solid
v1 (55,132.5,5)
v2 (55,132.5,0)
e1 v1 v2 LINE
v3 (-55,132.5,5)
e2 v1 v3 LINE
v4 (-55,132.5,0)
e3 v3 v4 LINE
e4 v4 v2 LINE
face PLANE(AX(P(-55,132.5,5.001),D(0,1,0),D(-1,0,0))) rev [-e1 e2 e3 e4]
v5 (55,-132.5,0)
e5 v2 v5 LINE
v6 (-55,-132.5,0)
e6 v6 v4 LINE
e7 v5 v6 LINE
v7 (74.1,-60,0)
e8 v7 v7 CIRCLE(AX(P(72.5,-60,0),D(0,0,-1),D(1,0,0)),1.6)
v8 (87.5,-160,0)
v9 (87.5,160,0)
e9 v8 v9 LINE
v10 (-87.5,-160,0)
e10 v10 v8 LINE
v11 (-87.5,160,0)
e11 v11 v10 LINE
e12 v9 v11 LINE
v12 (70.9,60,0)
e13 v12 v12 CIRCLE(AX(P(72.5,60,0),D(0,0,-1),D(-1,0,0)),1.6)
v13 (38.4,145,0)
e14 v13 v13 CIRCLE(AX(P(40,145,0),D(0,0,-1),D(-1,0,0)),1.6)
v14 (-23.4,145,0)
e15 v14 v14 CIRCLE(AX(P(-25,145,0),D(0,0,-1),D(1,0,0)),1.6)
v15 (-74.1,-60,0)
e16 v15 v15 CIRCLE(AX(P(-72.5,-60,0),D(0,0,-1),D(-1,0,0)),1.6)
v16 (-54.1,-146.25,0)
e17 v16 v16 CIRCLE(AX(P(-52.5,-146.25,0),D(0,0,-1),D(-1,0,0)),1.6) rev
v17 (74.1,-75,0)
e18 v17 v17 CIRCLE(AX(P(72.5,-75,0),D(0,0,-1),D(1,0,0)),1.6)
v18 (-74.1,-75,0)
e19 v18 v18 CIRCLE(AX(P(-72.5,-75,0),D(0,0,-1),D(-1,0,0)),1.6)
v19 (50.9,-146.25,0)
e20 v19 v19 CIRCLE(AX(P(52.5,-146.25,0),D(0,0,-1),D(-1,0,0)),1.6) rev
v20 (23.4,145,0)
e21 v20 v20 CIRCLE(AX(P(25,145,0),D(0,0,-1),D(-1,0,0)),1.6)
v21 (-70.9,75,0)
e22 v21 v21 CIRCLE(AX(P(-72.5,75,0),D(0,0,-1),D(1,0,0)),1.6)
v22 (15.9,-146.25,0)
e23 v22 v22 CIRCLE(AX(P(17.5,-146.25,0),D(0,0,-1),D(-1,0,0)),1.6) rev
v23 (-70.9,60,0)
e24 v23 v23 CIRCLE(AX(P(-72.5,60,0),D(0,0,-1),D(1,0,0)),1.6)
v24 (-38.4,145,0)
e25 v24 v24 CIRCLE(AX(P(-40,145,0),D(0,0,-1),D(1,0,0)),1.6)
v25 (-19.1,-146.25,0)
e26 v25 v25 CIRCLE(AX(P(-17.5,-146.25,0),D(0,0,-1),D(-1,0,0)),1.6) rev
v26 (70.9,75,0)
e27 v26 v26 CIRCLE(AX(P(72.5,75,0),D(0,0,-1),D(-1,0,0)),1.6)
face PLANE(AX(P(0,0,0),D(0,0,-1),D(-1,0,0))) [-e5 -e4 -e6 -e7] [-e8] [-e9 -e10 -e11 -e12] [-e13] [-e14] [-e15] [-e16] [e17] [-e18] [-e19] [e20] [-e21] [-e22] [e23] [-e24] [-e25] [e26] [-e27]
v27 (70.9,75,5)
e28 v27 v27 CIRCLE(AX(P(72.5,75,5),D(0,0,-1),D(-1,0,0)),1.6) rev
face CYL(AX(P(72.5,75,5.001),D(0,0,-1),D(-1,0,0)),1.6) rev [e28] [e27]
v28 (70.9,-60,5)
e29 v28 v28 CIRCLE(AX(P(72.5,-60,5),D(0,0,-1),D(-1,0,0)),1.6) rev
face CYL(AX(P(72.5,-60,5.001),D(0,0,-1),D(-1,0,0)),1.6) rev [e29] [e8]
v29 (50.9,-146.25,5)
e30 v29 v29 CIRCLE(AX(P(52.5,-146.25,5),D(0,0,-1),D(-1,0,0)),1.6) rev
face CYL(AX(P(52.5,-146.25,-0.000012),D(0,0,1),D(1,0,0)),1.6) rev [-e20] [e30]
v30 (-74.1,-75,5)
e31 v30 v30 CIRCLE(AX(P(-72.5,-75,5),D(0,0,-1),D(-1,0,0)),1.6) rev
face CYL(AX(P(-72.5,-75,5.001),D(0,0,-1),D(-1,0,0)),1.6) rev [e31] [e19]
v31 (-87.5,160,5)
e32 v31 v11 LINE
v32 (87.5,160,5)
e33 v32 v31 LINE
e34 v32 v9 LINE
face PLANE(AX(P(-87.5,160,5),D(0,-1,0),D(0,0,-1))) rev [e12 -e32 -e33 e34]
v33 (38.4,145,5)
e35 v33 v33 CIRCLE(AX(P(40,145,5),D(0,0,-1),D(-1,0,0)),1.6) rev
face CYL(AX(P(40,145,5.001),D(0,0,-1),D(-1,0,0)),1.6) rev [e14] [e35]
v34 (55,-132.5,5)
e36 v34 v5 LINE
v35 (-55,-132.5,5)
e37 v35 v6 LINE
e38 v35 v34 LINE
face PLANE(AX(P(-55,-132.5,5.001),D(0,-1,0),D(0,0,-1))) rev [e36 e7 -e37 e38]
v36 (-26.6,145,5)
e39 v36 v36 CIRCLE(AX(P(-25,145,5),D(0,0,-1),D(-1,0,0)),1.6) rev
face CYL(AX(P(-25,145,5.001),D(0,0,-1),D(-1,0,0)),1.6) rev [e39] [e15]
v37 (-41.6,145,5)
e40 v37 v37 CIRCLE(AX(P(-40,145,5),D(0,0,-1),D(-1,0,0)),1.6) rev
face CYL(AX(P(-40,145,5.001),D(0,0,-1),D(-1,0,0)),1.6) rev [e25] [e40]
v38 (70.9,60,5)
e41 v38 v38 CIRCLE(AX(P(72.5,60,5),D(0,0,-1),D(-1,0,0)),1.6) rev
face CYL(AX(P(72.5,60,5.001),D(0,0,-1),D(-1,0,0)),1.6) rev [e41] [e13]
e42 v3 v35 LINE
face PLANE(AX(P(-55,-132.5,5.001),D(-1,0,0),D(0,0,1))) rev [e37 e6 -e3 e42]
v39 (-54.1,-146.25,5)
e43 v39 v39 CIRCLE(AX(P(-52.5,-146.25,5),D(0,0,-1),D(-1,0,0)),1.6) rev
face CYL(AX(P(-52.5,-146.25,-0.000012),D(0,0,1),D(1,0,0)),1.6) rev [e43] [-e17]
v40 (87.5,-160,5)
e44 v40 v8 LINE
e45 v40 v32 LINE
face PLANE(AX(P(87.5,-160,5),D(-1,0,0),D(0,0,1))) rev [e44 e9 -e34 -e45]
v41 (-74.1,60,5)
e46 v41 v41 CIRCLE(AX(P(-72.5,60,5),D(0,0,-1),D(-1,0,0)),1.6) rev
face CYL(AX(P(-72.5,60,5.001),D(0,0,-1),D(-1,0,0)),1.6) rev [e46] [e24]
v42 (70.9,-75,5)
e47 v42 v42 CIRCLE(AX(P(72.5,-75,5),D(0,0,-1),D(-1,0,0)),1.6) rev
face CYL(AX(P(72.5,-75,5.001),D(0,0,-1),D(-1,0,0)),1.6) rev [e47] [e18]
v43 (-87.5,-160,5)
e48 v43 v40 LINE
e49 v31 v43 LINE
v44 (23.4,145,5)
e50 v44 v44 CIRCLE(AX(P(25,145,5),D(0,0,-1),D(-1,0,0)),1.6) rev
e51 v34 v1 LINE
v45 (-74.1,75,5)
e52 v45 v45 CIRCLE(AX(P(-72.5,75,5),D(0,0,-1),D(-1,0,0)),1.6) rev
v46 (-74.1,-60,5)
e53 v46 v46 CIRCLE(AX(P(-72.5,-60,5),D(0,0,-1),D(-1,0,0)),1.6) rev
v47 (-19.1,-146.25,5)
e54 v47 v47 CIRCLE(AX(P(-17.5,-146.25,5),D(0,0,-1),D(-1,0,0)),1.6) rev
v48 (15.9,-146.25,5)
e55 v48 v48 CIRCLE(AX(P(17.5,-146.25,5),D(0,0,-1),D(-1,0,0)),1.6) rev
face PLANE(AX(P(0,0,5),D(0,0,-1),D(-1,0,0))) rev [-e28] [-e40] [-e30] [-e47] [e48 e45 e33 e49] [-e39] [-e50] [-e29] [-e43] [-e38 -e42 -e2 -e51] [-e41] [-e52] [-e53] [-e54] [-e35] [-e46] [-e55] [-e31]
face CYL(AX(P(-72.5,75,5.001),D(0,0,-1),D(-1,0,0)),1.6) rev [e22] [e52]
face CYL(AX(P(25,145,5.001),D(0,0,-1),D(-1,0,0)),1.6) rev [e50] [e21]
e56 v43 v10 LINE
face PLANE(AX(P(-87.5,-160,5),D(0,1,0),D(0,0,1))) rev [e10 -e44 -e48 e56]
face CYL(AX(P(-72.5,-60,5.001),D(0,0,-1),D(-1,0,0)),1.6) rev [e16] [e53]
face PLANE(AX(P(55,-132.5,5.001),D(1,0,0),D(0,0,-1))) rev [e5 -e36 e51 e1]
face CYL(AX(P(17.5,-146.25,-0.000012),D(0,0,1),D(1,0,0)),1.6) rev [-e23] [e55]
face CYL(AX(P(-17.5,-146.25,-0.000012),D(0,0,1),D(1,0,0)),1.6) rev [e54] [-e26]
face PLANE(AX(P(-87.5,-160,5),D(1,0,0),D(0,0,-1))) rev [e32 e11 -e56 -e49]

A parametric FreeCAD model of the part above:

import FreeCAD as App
import Part
import Sketcher

V = App.Vector


def add_polygon(sketch, points):
    """Adds a closed chain of lines whose ends are joined by coincident constraints."""
    first, n = sketch.GeometryCount, len(points)
    for a, b in zip(points, points[1:] + points[:1]):
        sketch.addGeometry(Part.LineSegment(App.Vector(*a, 0), App.Vector(*b, 0)), False)
    for i in range(n):
        sketch.addConstraint(Sketcher.Constraint("Coincident", first + i, 2, first + (i + 1) % n, 1))

doc = App.newDocument("Part")
params = doc.addObject("Spreadsheet::Sheet", "Params")
for row, (alias, value) in enumerate([
    ("sketch1_width", "175 mm"),
    ("sketch1_height", "320 mm"),
    ("pad1_length", "5 mm"),
    ("sketch2_width", "110 mm"),
    ("sketch2_height", "265 mm"),
    ("sketch3_diameter", "3.2 mm"),
    ("sketch4_diameter", "3.2 mm"),
    ("sketch5_diameter", "3.2 mm"),
    ("sketch6_diameter", "3.2 mm"),
    ("sketch7_diameter", "3.2 mm"),
    ("sketch8_diameter", "3.2 mm"),
    ("sketch9_diameter", "3.2 mm"),
    ("sketch10_diameter", "3.2 mm"),
    ("sketch11_diameter", "3.2 mm"),
    ("sketch12_diameter", "3.2 mm"),
    ("sketch13_diameter", "3.2 mm"),
    ("sketch14_diameter", "3.2 mm"),
    ("sketch15_diameter", "3.2 mm"),
    ("sketch16_diameter", "3.2 mm"),
    ("sketch17_diameter", "3.2 mm"),
    ("sketch18_diameter", "3.2 mm"),
    ("sketch19_diameter", "3.2 mm"),
    ("pocket18_length", "1 mm"),
], start=1):
    params.set(f"A{row}", alias)
    params.set(f"B{row}", "=" + value)
    params.setAlias(f"B{row}", alias)

body = doc.addObject("PartDesign::Body", "Body")

sketch1 = body.newObject("Sketcher::SketchObject", "Sketch")
sketch1.AttachmentSupport = (doc.getObject("XY_Plane"), [""])
sketch1.MapMode = "FlatFace"
add_polygon(sketch1, [(-87.5, 160), (-87.5, -160), (87.5, -160), (87.5, 160)])
sketch1.addConstraint([
    Sketcher.Constraint("Vertical", 0),
    Sketcher.Constraint("Horizontal", 1),
    Sketcher.Constraint("Vertical", 2),
    Sketcher.Constraint("Horizontal", 3),
    Sketcher.Constraint("Symmetric", 0, 2, 2, 2, -1, 1),
    Sketcher.Constraint("DistanceX", 1, 1, 1, 2, 175.0),
    Sketcher.Constraint("DistanceY", 0, 2, 0, 1, 320.0),
])
sketch1.setExpression("Constraints[9]", "Params.sketch1_width")
sketch1.setExpression("Constraints[10]", "Params.sketch1_height")
pad1 = body.newObject("PartDesign::Pad", "Pad")
pad1.Profile = sketch1
pad1.setExpression("Length", "Params.pad1_length")

sketch2 = body.newObject("Sketcher::SketchObject", "Sketch001")
sketch2.AttachmentSupport = (doc.getObject("XY_Plane"), [""])
sketch2.MapMode = "FlatFace"
add_polygon(sketch2, [(55, 132.5), (55, -132.5), (-55, -132.5), (-55, 132.5)])
sketch2.addConstraint([
    Sketcher.Constraint("Vertical", 0),
    Sketcher.Constraint("Horizontal", 1),
    Sketcher.Constraint("Vertical", 2),
    Sketcher.Constraint("Horizontal", 3),
    Sketcher.Constraint("Symmetric", 0, 2, 2, 2, -1, 1),
    Sketcher.Constraint("DistanceX", 1, 2, 1, 1, 110.0),
    Sketcher.Constraint("DistanceY", 0, 2, 0, 1, 265.0),
])
sketch2.setExpression("Constraints[9]", "Params.sketch2_width")
sketch2.setExpression("Constraints[10]", "Params.sketch2_height")
pocket1 = body.newObject("PartDesign::Pocket", "Pocket")
pocket1.Profile = sketch2
pocket1.Type = "UpToFirst"
pocket1.Reversed = True

sketch3 = body.newObject("Sketcher::SketchObject", "Sketch002")
sketch3.AttachmentSupport = (doc.getObject("XY_Plane"), [""])
sketch3.MapMode = "FlatFace"
sketch3.addGeometry(Part.Circle(V(25, 145, 0), V(0, 0, 1), 1.6), False)
sketch3.addConstraint([
    Sketcher.Constraint("Diameter", 0, 3.2),
    Sketcher.Constraint("DistanceX", -1, 1, 0, 3, 25.0),
    Sketcher.Constraint("DistanceY", -1, 1, 0, 3, 145.0),
])
sketch3.setExpression("Constraints[0]", "Params.sketch3_diameter")
pocket2 = body.newObject("PartDesign::Pocket", "Pocket001")
pocket2.Profile = sketch3
pocket2.Type = "UpToFirst"
pocket2.Reversed = True

sketch4 = body.newObject("Sketcher::SketchObject", "Sketch003")
sketch4.AttachmentSupport = (doc.getObject("XY_Plane"), [""])
sketch4.MapMode = "FlatFace"
sketch4.addGeometry(Part.Circle(V(40, 145, 0), V(0, 0, 1), 1.6), False)
sketch4.addConstraint([
    Sketcher.Constraint("Diameter", 0, 3.2),
    Sketcher.Constraint("DistanceX", -1, 1, 0, 3, 40.0),
    Sketcher.Constraint("DistanceY", -1, 1, 0, 3, 145.0),
])
sketch4.setExpression("Constraints[0]", "Params.sketch4_diameter")
pocket3 = body.newObject("PartDesign::Pocket", "Pocket002")
pocket3.Profile = sketch4
pocket3.Type = "UpToFirst"
pocket3.Reversed = True

sketch5 = body.newObject("Sketcher::SketchObject", "Sketch004")
sketch5.AttachmentSupport = (doc.getObject("XY_Plane"), [""])
sketch5.MapMode = "FlatFace"
sketch5.addGeometry(Part.Circle(V(-25, 145, 0), V(0, 0, 1), 1.6), False)
sketch5.addConstraint([
    Sketcher.Constraint("Diameter", 0, 3.2),
    Sketcher.Constraint("DistanceX", 0, 3, -1, 1, 25.0),
    Sketcher.Constraint("DistanceY", -1, 1, 0, 3, 145.0),
])
sketch5.setExpression("Constraints[0]", "Params.sketch5_diameter")
pocket4 = body.newObject("PartDesign::Pocket", "Pocket003")
pocket4.Profile = sketch5
pocket4.Type = "UpToFirst"
pocket4.Reversed = True

sketch6 = body.newObject("Sketcher::SketchObject", "Sketch005")
sketch6.AttachmentSupport = (doc.getObject("XY_Plane"), [""])
sketch6.MapMode = "FlatFace"
sketch6.addGeometry(Part.Circle(V(-40, 145, 0), V(0, 0, 1), 1.6), False)
sketch6.addConstraint([
    Sketcher.Constraint("Diameter", 0, 3.2),
    Sketcher.Constraint("DistanceX", 0, 3, -1, 1, 40.0),
    Sketcher.Constraint("DistanceY", -1, 1, 0, 3, 145.0),
])
sketch6.setExpression("Constraints[0]", "Params.sketch6_diameter")
pocket5 = body.newObject("PartDesign::Pocket", "Pocket004")
pocket5.Profile = sketch6
pocket5.Type = "UpToFirst"
pocket5.Reversed = True

sketch7 = body.newObject("Sketcher::SketchObject", "Sketch006")
sketch7.AttachmentSupport = (doc.getObject("XY_Plane"), [""])
sketch7.MapMode = "FlatFace"
sketch7.addGeometry(Part.Circle(V(72.5, 75, 0), V(0, 0, 1), 1.6), False)
sketch7.addConstraint([
    Sketcher.Constraint("Diameter", 0, 3.2),
    Sketcher.Constraint("DistanceY", -1, 1, 0, 3, 75.0),
    Sketcher.Constraint("DistanceX", -1, 1, 0, 3, 72.5),
])
sketch7.setExpression("Constraints[0]", "Params.sketch7_diameter")
pocket6 = body.newObject("PartDesign::Pocket", "Pocket005")
pocket6.Profile = sketch7
pocket6.Type = "UpToFirst"
pocket6.Reversed = True

sketch8 = body.newObject("Sketcher::SketchObject", "Sketch007")
sketch8.AttachmentSupport = (doc.getObject("XY_Plane"), [""])
sketch8.MapMode = "FlatFace"
sketch8.addGeometry(Part.Circle(V(72.5, 60, 0), V(0, 0, 1), 1.6), False)
sketch8.addConstraint([
    Sketcher.Constraint("Diameter", 0, 3.2),
    Sketcher.Constraint("DistanceY", -1, 1, 0, 3, 60.0),
    Sketcher.Constraint("DistanceX", -1, 1, 0, 3, 72.5),
])
sketch8.setExpression("Constraints[0]", "Params.sketch8_diameter")
pocket7 = body.newObject("PartDesign::Pocket", "Pocket006")
pocket7.Profile = sketch8
pocket7.Type = "UpToFirst"
pocket7.Reversed = True

sketch9 = body.newObject("Sketcher::SketchObject", "Sketch008")
sketch9.AttachmentSupport = (doc.getObject("XY_Plane"), [""])
sketch9.MapMode = "FlatFace"
sketch9.addGeometry(Part.Circle(V(72.5, -75, 0), V(0, 0, 1), 1.6), False)
sketch9.addConstraint([
    Sketcher.Constraint("Diameter", 0, 3.2),
    Sketcher.Constraint("DistanceY", 0, 3, -1, 1, 75.0),
    Sketcher.Constraint("DistanceX", -1, 1, 0, 3, 72.5),
])
sketch9.setExpression("Constraints[0]", "Params.sketch9_diameter")
pocket8 = body.newObject("PartDesign::Pocket", "Pocket007")
pocket8.Profile = sketch9
pocket8.Type = "UpToFirst"
pocket8.Reversed = True

sketch10 = body.newObject("Sketcher::SketchObject", "Sketch009")
sketch10.AttachmentSupport = (doc.getObject("XY_Plane"), [""])
sketch10.MapMode = "FlatFace"
sketch10.addGeometry(Part.Circle(V(72.5, -60, 0), V(0, 0, 1), 1.6), False)
sketch10.addConstraint([
    Sketcher.Constraint("Diameter", 0, 3.2),
    Sketcher.Constraint("DistanceY", 0, 3, -1, 1, 60.0),
    Sketcher.Constraint("DistanceX", -1, 1, 0, 3, 72.5),
])
sketch10.setExpression("Constraints[0]", "Params.sketch10_diameter")
pocket9 = body.newObject("PartDesign::Pocket", "Pocket008")
pocket9.Profile = sketch10
pocket9.Type = "UpToFirst"
pocket9.Reversed = True

sketch11 = body.newObject("Sketcher::SketchObject", "Sketch010")
sketch11.AttachmentSupport = (doc.getObject("XY_Plane"), [""])
sketch11.MapMode = "FlatFace"
sketch11.addGeometry(Part.Circle(V(-72.5, -75, 0), V(0, 0, 1), 1.6), False)
sketch11.addConstraint([
    Sketcher.Constraint("Diameter", 0, 3.2),
    Sketcher.Constraint("DistanceY", 0, 3, -1, 1, 75.0),
    Sketcher.Constraint("DistanceX", 0, 3, -1, 1, 72.5),
])
sketch11.setExpression("Constraints[0]", "Params.sketch11_diameter")
pocket10 = body.newObject("PartDesign::Pocket", "Pocket009")
pocket10.Profile = sketch11
pocket10.Type = "UpToFirst"
pocket10.Reversed = True

sketch12 = body.newObject("Sketcher::SketchObject", "Sketch011")
sketch12.AttachmentSupport = (doc.getObject("XY_Plane"), [""])
sketch12.MapMode = "FlatFace"
sketch12.addGeometry(Part.Circle(V(-72.5, -60, 0), V(0, 0, 1), 1.6), False)
sketch12.addConstraint([
    Sketcher.Constraint("Diameter", 0, 3.2),
    Sketcher.Constraint("DistanceY", 0, 3, -1, 1, 60.0),
    Sketcher.Constraint("DistanceX", 0, 3, -1, 1, 72.5),
])
sketch12.setExpression("Constraints[0]", "Params.sketch12_diameter")
pocket11 = body.newObject("PartDesign::Pocket", "Pocket010")
pocket11.Profile = sketch12
pocket11.Type = "UpToFirst"
pocket11.Reversed = True

sketch13 = body.newObject("Sketcher::SketchObject", "Sketch012")
sketch13.AttachmentSupport = (doc.getObject("XY_Plane"), [""])
sketch13.MapMode = "FlatFace"
sketch13.addGeometry(Part.Circle(V(-72.5, 60, 0), V(0, 0, 1), 1.6), False)
sketch13.addConstraint([
    Sketcher.Constraint("Diameter", 0, 3.2),
    Sketcher.Constraint("DistanceY", -1, 1, 0, 3, 60.0),
    Sketcher.Constraint("DistanceX", 0, 3, -1, 1, 72.5),
])
sketch13.setExpression("Constraints[0]", "Params.sketch13_diameter")
pocket12 = body.newObject("PartDesign::Pocket", "Pocket011")
pocket12.Profile = sketch13
pocket12.Type = "UpToFirst"
pocket12.Reversed = True

sketch14 = body.newObject("Sketcher::SketchObject", "Sketch013")
sketch14.AttachmentSupport = (doc.getObject("XY_Plane"), [""])
sketch14.MapMode = "FlatFace"
sketch14.addGeometry(Part.Circle(V(-72.5, 75, 0), V(0, 0, 1), 1.6), False)
sketch14.addConstraint([
    Sketcher.Constraint("Diameter", 0, 3.2),
    Sketcher.Constraint("DistanceY", -1, 1, 0, 3, 75.0),
    Sketcher.Constraint("DistanceX", 0, 3, -1, 1, 72.5),
])
sketch14.setExpression("Constraints[0]", "Params.sketch14_diameter")
pocket13 = body.newObject("PartDesign::Pocket", "Pocket012")
pocket13.Profile = sketch14
pocket13.Type = "UpToFirst"
pocket13.Reversed = True

sketch15 = body.newObject("Sketcher::SketchObject", "Sketch014")
sketch15.AttachmentSupport = (doc.getObject("XY_Plane"), [""])
sketch15.MapMode = "FlatFace"
sketch15.addGeometry(Part.Circle(V(-52.5, -146.25, 0), V(0, 0, 1), 1.6), False)
sketch15.addConstraint([
    Sketcher.Constraint("Diameter", 0, 3.2),
    Sketcher.Constraint("DistanceX", 0, 3, -1, 1, 52.5),
    Sketcher.Constraint("DistanceY", 0, 3, -1, 1, 146.25),
])
sketch15.setExpression("Constraints[0]", "Params.sketch15_diameter")
pocket14 = body.newObject("PartDesign::Pocket", "Pocket013")
pocket14.Profile = sketch15
pocket14.Type = "UpToFirst"
pocket14.Reversed = True

sketch16 = body.newObject("Sketcher::SketchObject", "Sketch015")
sketch16.AttachmentSupport = (doc.getObject("XY_Plane"), [""])
sketch16.MapMode = "FlatFace"
sketch16.addGeometry(Part.Circle(V(-17.5, -146.25, 0), V(0, 0, 1), 1.6), False)
sketch16.addConstraint([
    Sketcher.Constraint("Diameter", 0, 3.2),
    Sketcher.Constraint("DistanceX", 0, 3, -1, 1, 17.5),
    Sketcher.Constraint("DistanceY", 0, 3, -1, 1, 146.25),
])
sketch16.setExpression("Constraints[0]", "Params.sketch16_diameter")
pocket15 = body.newObject("PartDesign::Pocket", "Pocket014")
pocket15.Profile = sketch16
pocket15.Type = "UpToFirst"
pocket15.Reversed = True

sketch17 = body.newObject("Sketcher::SketchObject", "Sketch016")
sketch17.AttachmentSupport = (doc.getObject("XY_Plane"), [""])
sketch17.MapMode = "FlatFace"
sketch17.addGeometry(Part.Circle(V(17.5, -146.25, 0), V(0, 0, 1), 1.6), False)
sketch17.addConstraint([
    Sketcher.Constraint("Diameter", 0, 3.2),
    Sketcher.Constraint("DistanceX", -1, 1, 0, 3, 17.5),
    Sketcher.Constraint("DistanceY", 0, 3, -1, 1, 146.25),
])
sketch17.setExpression("Constraints[0]", "Params.sketch17_diameter")
pocket16 = body.newObject("PartDesign::Pocket", "Pocket015")
pocket16.Profile = sketch17
pocket16.Type = "UpToFirst"
pocket16.Reversed = True

sketch18 = body.newObject("Sketcher::SketchObject", "Sketch017")
sketch18.AttachmentSupport = (doc.getObject("XY_Plane"), [""])
sketch18.MapMode = "FlatFace"
sketch18.addGeometry(Part.Circle(V(52.5, -146.25, 0), V(0, 0, 1), 1.6), False)
sketch18.addConstraint([
    Sketcher.Constraint("Diameter", 0, 3.2),
    Sketcher.Constraint("DistanceX", -1, 1, 0, 3, 52.5),
    Sketcher.Constraint("DistanceY", 0, 3, -1, 1, 146.25),
])
sketch18.setExpression("Constraints[0]", "Params.sketch18_diameter")
pocket17 = body.newObject("PartDesign::Pocket", "Pocket016")
pocket17.Profile = sketch18
pocket17.Type = "UpToFirst"
pocket17.Reversed = True

sketch19 = body.newObject("Sketcher::SketchObject", "Sketch018")
sketch19.AttachmentSupport = (doc.getObject("XY_Plane"), [""])
sketch19.MapMode = "FlatFace"
sketch19.addGeometry([
    Part.Circle(V(-52.5, -146.25, 0), V(0, 0, 1), 1.6),
    Part.Circle(V(-17.5, -146.25, 0), V(0, 0, 1), 1.6),
    Part.Circle(V(17.5, -146.25, 0), V(0, 0, 1), 1.6),
    Part.Circle(V(52.5, -146.25, 0), V(0, 0, 1), 1.6),
], False)
sketch19.addConstraint([
    Sketcher.Constraint("Equal", 0, 1),
    Sketcher.Constraint("Equal", 1, 2),
    Sketcher.Constraint("Equal", 2, 3),
    Sketcher.Constraint("Symmetric", 1, 3, 2, 3, -2),
    Sketcher.Constraint("Symmetric", 0, 3, 3, 3, -2),
    Sketcher.Constraint("Horizontal", 0, 3, 1, 3),
    Sketcher.Constraint("Diameter", 0, 3.2),
    Sketcher.Constraint("DistanceX", 0, 3, 1, 3, 35.0),
    Sketcher.Constraint("DistanceX", 1, 3, 2, 3, 35.0),
    Sketcher.Constraint("DistanceY", 0, 3, -1, 1, 146.25),
])
sketch19.setExpression("Constraints[6]", "Params.sketch19_diameter")
pocket18 = body.newObject("PartDesign::Pocket", "Pocket017")
pocket18.Profile = sketch19
pocket18.setExpression("Length", "Params.pocket18_length")

doc.recompute()
